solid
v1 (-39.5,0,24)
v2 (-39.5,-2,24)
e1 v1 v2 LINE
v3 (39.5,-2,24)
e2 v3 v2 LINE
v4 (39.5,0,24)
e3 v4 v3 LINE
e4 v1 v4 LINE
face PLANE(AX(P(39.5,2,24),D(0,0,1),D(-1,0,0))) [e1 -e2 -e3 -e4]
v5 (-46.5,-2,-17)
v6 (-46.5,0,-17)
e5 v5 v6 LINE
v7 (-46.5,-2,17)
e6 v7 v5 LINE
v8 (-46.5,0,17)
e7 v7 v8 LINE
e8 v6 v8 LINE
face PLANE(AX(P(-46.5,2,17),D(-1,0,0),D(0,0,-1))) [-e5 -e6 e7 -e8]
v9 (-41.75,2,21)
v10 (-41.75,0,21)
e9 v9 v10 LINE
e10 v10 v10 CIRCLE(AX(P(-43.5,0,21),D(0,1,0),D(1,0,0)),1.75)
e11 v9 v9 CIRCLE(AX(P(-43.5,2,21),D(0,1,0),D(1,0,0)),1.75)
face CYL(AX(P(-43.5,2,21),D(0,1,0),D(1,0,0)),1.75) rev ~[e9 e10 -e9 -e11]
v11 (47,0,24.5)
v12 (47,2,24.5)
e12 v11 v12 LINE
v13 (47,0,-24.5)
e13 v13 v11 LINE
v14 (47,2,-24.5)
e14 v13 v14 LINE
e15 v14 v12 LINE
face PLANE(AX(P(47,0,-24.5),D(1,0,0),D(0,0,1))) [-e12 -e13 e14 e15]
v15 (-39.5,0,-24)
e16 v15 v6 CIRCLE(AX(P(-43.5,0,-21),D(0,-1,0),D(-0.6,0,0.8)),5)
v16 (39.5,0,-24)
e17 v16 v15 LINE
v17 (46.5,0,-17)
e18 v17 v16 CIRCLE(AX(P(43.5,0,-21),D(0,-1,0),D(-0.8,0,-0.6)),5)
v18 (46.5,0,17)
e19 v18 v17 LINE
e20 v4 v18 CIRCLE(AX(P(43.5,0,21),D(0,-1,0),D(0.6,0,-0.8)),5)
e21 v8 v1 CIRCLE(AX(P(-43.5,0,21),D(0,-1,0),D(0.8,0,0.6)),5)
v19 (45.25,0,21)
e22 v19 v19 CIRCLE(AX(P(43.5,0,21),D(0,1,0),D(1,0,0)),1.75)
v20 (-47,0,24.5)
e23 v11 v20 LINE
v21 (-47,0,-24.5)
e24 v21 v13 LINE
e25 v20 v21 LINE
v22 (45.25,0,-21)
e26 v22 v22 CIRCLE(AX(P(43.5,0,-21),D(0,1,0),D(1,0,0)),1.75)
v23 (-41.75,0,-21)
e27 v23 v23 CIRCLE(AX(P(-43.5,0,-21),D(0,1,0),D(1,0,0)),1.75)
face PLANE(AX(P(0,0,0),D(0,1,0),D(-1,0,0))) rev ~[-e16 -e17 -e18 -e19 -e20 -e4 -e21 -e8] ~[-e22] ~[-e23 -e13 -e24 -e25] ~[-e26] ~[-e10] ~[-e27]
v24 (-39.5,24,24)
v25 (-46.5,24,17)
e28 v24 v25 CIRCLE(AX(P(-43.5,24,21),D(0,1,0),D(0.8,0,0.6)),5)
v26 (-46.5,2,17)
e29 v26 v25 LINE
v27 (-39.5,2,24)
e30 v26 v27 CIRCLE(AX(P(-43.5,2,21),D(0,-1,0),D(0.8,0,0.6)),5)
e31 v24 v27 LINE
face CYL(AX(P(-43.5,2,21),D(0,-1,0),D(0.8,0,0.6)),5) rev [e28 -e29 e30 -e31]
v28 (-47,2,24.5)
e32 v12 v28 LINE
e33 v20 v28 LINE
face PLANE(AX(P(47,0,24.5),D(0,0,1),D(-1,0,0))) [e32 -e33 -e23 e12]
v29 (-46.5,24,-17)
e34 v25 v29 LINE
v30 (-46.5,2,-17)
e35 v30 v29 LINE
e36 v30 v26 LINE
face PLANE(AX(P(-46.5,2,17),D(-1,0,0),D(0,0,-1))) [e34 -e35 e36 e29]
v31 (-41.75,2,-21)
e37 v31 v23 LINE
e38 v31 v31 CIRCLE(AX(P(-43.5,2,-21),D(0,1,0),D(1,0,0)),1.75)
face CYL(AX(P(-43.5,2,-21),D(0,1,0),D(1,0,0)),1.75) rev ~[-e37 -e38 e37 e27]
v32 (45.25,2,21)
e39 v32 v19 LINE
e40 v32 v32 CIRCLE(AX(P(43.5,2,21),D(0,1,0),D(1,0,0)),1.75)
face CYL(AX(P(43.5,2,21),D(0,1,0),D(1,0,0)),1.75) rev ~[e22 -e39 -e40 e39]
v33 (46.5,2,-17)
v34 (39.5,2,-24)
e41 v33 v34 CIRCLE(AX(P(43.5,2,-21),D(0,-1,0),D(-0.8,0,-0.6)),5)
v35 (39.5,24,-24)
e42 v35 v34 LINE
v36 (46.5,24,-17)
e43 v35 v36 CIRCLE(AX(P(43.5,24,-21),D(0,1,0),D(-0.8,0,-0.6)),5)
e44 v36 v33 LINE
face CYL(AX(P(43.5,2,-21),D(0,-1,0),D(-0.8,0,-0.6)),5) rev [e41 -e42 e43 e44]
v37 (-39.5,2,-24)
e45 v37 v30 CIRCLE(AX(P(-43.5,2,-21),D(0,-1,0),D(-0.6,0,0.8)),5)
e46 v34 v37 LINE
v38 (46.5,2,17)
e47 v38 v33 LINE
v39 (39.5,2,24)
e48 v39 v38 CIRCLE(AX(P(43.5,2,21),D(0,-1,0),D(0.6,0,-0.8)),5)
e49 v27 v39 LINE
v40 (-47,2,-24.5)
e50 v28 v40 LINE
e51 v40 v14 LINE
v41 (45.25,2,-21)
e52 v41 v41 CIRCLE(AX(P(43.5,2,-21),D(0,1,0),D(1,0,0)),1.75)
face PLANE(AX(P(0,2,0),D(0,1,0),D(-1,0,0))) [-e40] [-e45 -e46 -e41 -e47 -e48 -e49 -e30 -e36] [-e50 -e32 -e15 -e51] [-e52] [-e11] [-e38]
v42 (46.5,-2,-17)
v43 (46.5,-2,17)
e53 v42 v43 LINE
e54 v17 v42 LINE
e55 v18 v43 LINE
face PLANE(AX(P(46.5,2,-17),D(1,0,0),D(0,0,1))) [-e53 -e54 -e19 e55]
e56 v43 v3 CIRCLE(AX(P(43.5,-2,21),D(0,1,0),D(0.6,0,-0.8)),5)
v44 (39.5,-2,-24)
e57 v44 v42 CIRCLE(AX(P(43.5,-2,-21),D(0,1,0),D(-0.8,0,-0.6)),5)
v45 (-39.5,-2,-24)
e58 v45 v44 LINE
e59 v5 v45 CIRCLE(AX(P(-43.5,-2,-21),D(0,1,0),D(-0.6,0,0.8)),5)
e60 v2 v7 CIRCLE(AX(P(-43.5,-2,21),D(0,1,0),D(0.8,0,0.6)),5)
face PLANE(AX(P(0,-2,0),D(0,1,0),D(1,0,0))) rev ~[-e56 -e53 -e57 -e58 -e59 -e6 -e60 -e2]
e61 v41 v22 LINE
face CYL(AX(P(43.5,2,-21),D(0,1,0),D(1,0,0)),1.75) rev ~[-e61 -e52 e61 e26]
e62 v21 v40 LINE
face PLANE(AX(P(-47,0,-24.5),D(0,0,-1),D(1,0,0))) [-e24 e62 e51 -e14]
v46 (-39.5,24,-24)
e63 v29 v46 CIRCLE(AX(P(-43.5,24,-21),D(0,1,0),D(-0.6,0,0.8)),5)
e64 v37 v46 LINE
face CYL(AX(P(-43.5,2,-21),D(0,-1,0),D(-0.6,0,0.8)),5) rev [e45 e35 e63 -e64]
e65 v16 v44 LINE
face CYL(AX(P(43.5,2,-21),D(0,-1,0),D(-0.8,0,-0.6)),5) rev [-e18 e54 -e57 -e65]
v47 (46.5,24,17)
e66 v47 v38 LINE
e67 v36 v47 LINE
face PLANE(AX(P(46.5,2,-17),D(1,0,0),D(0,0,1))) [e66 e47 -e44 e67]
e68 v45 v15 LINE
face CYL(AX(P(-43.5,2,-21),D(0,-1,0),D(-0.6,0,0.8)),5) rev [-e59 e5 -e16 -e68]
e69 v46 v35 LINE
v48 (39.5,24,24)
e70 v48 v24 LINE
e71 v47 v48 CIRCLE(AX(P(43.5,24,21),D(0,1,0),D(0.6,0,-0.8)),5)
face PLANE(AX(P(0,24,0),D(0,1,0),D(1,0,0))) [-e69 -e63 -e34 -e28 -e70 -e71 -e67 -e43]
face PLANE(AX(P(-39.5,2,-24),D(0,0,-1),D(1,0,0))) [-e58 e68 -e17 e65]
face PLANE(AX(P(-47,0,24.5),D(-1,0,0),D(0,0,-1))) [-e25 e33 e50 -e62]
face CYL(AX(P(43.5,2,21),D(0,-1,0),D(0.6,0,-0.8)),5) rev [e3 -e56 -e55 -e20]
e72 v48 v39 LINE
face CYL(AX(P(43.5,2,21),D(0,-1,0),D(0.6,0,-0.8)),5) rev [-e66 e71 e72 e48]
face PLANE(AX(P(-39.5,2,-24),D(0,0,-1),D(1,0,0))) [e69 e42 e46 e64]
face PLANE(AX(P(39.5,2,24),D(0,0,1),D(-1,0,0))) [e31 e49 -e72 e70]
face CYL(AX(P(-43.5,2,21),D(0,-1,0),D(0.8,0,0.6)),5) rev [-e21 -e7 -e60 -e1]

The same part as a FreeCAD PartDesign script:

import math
import FreeCAD as App
import Part
import Sketcher
from FreeCAD import Vector
Q = App.Units.Quantity

doc = App.newDocument("Part")
body = doc.addObject("PartDesign::Body", "Body")

sketch1 = body.newObject("Sketcher::SketchObject", "Sketch")
sketch1.AttachmentSupport = (doc.getObject("XZ_Plane"), [""])
sketch1.MapMode = "FlatFace"
sketch1.addGeometry([
    Part.LineSegment(Vector(47, -24.5, 0), Vector(-47, -24.5, 0)),
    Part.LineSegment(Vector(-47, -24.5, 0), Vector(-47, 24.5, 0)),
    Part.LineSegment(Vector(-47, 24.5, 0), Vector(47, 24.5, 0)),
    Part.LineSegment(Vector(47, 24.5, 0), Vector(47, -24.5, 0)),
], False)
sketch1.addConstraint([
    Sketcher.Constraint("Coincident", 0, 2, 1, 1),
    Sketcher.Constraint("Coincident", 1, 2, 2, 1),
    Sketcher.Constraint("Coincident", 2, 2, 3, 1),
    Sketcher.Constraint("Coincident", 3, 2, 0, 1),
    Sketcher.Constraint("Horizontal", 0),
    Sketcher.Constraint("Vertical", 1),
    Sketcher.Constraint("Horizontal", 2),
    Sketcher.Constraint("Vertical", 3),
    Sketcher.Constraint("Symmetric", 0, 2, 2, 2, -1, 1),
    Sketcher.Constraint("DistanceX", 0, 2, 0, 1, Q("94 mm")),
    Sketcher.Constraint("DistanceY", 1, 1, 1, 2, Q("49 mm")),
])
pad1 = body.newObject("PartDesign::Pad", "Pad")
pad1.Profile = sketch1
pad1.Length = 2
pad1.Reversed = True

sketch2 = body.newObject("Sketcher::SketchObject", "Sketch001")
sketch2.AttachmentSupport = (doc.getObject("XZ_Plane"), [""])
sketch2.MapMode = "FlatFace"
sketch2.AttachmentOffset = App.Placement(Vector(0, 0, -2), App.Rotation())
sketch2.addGeometry([
    Part.Circle(Vector(-43.5, -21, 0), Vector(0, 0, 1), 1.75),
    Part.Circle(Vector(-43.5, 21, 0), Vector(0, 0, 1), 1.75),
    Part.Circle(Vector(43.5, 21, 0), Vector(0, 0, 1), 1.75),
    Part.Circle(Vector(43.5, -21, 0), Vector(0, 0, 1), 1.75),
], False)
sketch2.addConstraint([
    Sketcher.Constraint("Equal", 0, 1),
    Sketcher.Constraint("Equal", 1, 2),
    Sketcher.Constraint("Equal", 2, 3),
    Sketcher.Constraint("Symmetric", 0, 3, 2, 3, -1, 1),
    Sketcher.Constraint("Symmetric", 1, 3, 3, 3, -1, 1),
    Sketcher.Constraint("Symmetric", 1, 3, 2, 3, -2),
    Sketcher.Constraint("Diameter", 0, Q("3.5 mm")),
    Sketcher.Constraint("DistanceY", 0, 3, -1, 1, Q("21 mm")),
    Sketcher.Constraint("DistanceX", 1, 3, 2, 3, Q("87 mm")),
])
pocket1 = body.newObject("PartDesign::Pocket", "Pocket")
pocket1.Profile = sketch2
pocket1.Type = "ThroughAll"
pocket1.Reversed = True

sketch3 = body.newObject("Sketcher::SketchObject", "Sketch002")
sketch3.AttachmentSupport = (doc.getObject("XZ_Plane"), [""])
sketch3.MapMode = "FlatFace"
sketch3.AttachmentOffset = App.Placement(Vector(0, 0, -2), App.Rotation())
sketch3.addGeometry([
    Part.LineSegment(Vector(39.5, -24, 0), Vector(-39.5, -24, 0)),
    Part.ArcOfCircle(Part.Circle(Vector(-43.5, -21, 0), Vector(0, 0, 1), 5), math.radians(-36.869898), math.radians(126.869898)),
    Part.LineSegment(Vector(-46.5, -17, 0), Vector(-46.5, 17, 0)),
    Part.ArcOfCircle(Part.Circle(Vector(-43.5, 21, 0), Vector(0, 0, 1), 5), math.radians(-126.869898), math.radians(36.869898)),
    Part.LineSegment(Vector(-39.5, 24, 0), Vector(39.5, 24, 0)),
    Part.ArcOfCircle(Part.Circle(Vector(43.5, 21, 0), Vector(0, 0, 1), 5), math.radians(143.130102), math.radians(306.869898)),
    Part.LineSegment(Vector(46.5, 17, 0), Vector(46.5, -17, 0)),
    Part.ArcOfCircle(Part.Circle(Vector(43.5, -21, 0), Vector(0, 0, 1), 5), math.radians(53.130102), math.radians(216.869898)),
], False)
sketch3.addConstraint([
    Sketcher.Constraint("Coincident", 0, 2, 1, 1),
    Sketcher.Constraint("Coincident", 1, 2, 2, 1),
    Sketcher.Constraint("Coincident", 2, 2, 3, 1),
    Sketcher.Constraint("Coincident", 3, 2, 4, 1),
    Sketcher.Constraint("Coincident", 4, 2, 5, 1),
    Sketcher.Constraint("Coincident", 5, 2, 6, 1),
    Sketcher.Constraint("Coincident", 6, 2, 7, 1),
    Sketcher.Constraint("Coincident", 7, 2, 0, 1),
    Sketcher.Constraint("Horizontal", 0),
    Sketcher.Constraint("Vertical", 2),
    Sketcher.Constraint("Horizontal", 4),
    Sketcher.Constraint("Vertical", 6),
    Sketcher.Constraint("Equal", 1, 3),
    Sketcher.Constraint("Equal", 3, 5),
    Sketcher.Constraint("Equal", 5, 7),
    Sketcher.Constraint("Symmetric", 1, 3, 5, 3, -1, 1),
    Sketcher.Constraint("Symmetric", 3, 3, 7, 3, -1, 1),
    Sketcher.Constraint("Symmetric", 3, 3, 5, 3, -2),
    Sketcher.Constraint("Horizontal", 2, 2, 5, 2),
    Sketcher.Constraint("Vertical", 0, 2, 3, 2),
    Sketcher.Constraint("Radius", 1, Q("5 mm")),
    Sketcher.Constraint("DistanceX", 0, 2, 0, 1, Q("79 mm")),
    Sketcher.Constraint("DistanceY", 2, 1, 2, 2, Q("34 mm")),
    Sketcher.Constraint("DistanceY", 1, 3, -1, 1, Q("21 mm")),
    Sketcher.Constraint("DistanceY", 0, 2, -1, 1, Q("24 mm")),
])
pad2 = body.newObject("PartDesign::Pad", "Pad001")
pad2.Profile = sketch3
pad2.Type = "TwoLengths"
pad2.Length = 22
pad2.Length2 = 4
pad2.Reversed = True

doc.recompute()
